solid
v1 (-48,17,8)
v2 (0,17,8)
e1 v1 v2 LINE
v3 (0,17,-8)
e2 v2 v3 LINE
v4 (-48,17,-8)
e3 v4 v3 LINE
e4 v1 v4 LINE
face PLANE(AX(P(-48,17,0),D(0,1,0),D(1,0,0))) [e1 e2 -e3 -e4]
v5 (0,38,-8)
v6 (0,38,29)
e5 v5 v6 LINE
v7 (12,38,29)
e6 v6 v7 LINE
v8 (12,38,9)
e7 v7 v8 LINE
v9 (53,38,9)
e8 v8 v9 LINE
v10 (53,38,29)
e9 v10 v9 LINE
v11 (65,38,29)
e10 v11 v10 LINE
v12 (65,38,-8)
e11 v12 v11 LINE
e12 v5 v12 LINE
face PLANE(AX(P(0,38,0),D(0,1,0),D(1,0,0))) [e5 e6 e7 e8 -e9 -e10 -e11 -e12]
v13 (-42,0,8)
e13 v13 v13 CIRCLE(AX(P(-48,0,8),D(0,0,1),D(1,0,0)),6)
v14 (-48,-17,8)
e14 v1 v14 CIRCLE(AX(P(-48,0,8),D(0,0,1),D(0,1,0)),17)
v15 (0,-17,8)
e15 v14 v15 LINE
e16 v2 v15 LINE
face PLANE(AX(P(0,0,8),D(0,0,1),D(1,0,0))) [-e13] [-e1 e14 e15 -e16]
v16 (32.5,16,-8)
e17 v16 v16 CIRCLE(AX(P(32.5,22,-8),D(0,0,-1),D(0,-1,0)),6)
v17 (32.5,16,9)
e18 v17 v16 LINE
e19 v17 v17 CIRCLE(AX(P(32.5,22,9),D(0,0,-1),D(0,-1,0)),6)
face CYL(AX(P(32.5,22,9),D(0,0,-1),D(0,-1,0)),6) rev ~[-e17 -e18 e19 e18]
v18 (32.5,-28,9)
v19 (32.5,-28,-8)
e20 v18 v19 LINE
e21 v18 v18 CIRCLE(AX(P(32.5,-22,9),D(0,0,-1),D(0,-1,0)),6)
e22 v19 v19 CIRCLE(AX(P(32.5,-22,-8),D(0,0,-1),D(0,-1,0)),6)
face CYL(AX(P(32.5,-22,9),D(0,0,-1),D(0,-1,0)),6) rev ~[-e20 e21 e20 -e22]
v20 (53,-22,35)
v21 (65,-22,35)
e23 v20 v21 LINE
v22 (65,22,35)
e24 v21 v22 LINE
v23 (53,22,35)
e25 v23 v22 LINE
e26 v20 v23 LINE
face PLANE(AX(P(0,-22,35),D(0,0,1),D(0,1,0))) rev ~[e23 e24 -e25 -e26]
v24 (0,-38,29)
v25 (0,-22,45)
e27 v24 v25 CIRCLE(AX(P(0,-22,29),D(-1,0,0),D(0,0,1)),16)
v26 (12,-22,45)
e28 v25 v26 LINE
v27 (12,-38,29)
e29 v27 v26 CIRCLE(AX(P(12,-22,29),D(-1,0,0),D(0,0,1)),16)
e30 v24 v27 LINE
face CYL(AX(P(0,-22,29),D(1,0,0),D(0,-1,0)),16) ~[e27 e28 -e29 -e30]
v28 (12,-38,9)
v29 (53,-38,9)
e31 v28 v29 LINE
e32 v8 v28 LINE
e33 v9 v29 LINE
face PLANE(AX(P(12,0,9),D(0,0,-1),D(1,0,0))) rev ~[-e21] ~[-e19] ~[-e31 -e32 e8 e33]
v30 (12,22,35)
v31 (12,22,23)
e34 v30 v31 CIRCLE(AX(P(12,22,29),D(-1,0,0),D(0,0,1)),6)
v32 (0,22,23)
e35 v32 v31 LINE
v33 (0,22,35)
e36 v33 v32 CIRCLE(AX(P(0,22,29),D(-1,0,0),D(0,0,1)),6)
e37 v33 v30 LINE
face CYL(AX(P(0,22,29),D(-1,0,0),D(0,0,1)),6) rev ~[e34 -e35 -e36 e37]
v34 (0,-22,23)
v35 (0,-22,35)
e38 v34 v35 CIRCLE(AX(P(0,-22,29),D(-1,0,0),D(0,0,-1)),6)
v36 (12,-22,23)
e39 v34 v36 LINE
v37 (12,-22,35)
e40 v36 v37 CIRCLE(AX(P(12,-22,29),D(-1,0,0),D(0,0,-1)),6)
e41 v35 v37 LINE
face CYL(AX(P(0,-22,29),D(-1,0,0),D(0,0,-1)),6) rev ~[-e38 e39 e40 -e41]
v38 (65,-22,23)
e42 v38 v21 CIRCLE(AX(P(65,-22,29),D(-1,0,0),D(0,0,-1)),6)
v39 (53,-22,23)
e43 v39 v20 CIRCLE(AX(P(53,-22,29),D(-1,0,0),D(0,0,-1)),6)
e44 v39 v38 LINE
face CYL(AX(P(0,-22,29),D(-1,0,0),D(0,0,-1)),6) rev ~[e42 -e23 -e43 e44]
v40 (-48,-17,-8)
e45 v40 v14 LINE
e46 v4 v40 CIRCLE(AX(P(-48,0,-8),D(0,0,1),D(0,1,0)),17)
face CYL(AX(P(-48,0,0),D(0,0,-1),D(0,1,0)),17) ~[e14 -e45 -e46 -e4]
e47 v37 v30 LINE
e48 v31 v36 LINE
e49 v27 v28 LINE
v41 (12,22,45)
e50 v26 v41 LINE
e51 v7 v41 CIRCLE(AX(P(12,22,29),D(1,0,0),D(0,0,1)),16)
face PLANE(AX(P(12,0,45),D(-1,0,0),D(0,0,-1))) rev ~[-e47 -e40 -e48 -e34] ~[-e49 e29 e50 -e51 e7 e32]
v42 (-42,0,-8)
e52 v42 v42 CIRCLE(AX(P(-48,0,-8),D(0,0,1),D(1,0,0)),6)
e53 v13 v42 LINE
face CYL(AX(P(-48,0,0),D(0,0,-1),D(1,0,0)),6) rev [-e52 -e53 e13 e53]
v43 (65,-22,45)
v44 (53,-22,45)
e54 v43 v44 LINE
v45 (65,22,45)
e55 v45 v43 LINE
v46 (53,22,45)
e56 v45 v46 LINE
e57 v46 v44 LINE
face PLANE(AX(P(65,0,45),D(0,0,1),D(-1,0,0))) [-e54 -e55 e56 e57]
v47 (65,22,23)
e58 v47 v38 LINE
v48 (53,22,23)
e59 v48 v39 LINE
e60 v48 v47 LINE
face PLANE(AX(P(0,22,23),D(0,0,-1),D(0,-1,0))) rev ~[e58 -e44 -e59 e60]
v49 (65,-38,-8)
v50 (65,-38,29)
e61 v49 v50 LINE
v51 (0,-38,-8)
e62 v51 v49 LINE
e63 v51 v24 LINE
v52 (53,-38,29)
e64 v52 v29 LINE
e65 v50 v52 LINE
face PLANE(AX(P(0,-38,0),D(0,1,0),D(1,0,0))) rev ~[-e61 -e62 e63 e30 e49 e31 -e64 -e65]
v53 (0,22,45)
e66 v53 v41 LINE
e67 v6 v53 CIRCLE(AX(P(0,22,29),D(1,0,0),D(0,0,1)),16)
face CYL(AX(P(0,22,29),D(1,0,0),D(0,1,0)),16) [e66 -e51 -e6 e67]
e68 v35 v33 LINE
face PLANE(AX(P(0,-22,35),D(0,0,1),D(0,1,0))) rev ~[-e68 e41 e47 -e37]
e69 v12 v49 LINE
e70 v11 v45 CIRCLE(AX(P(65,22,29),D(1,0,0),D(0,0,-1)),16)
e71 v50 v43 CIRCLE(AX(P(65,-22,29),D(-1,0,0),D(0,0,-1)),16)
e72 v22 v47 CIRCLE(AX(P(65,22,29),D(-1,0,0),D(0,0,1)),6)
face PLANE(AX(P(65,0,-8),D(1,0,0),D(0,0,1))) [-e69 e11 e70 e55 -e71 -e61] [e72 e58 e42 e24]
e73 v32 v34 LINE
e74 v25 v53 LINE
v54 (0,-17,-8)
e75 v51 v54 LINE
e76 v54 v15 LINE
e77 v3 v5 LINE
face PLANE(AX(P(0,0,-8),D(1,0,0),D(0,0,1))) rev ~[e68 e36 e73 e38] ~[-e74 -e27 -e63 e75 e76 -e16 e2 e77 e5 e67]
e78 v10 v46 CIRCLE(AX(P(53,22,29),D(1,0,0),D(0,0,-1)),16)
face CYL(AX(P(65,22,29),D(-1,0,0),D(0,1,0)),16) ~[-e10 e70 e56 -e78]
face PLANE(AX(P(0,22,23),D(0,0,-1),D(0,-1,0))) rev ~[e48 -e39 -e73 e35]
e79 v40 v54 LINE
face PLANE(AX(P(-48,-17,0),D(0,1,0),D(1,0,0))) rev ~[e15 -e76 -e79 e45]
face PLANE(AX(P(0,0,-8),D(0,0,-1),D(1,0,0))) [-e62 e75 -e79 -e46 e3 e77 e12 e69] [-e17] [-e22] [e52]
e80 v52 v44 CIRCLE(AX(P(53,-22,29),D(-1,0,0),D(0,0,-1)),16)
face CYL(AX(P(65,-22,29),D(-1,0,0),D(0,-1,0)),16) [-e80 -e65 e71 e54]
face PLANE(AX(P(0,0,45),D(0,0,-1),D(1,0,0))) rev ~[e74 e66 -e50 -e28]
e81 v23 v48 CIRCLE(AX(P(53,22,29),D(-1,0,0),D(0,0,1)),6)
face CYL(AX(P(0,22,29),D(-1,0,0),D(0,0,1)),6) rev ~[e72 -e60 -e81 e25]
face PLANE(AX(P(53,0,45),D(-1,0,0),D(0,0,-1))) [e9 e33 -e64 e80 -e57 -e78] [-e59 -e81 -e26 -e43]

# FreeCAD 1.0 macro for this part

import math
import FreeCAD as App
import Part
import Sketcher
Q = App.Units.Quantity


def edges_at(feature, points):
    """Names of the edges that pass closest to the given points."""
    edges = feature.Shape.Edges
    near = lambda p: min(range(len(edges)), key=lambda i: edges[i].distToShape(Part.Vertex(*p))[0])
    return sorted({f"Edge{near(p) + 1}" for p in points})

doc = App.newDocument("Part")
params = doc.addObject("Spreadsheet::Sheet", "Params")
for row, (alias, value) in enumerate([
    ("sketch1_diameter", "12 mm"),
    ("sketch1_radius", "17 mm"),
    ("sketch1_width", "48 mm"),
    ("pad1_length", "16 mm"),
    ("sketch2_width", "65 mm"),
    ("sketch2_width2", "12 mm"),
    ("sketch2_height", "53 mm"),
    ("sketch2_height2", "36 mm"),
    ("pad2_length", "76 mm"),
    ("fillet_radius", "16 mm"),
    ("sketch3_radius", "6 mm"),
    ("sketch3_width", "44 mm"),
    ("pocket1_length", "65 mm"),
    ("sketch4_diameter", "12 mm"),
    ("hole_diameter", "12 mm"),
    ("hole_depth", "65 mm"),
], start=1):
    params.set(f"A{row}", alias)
    params.set(f"B{row}", "=" + value)
    params.setAlias(f"B{row}", alias)

body = doc.addObject("PartDesign::Body", "Body")

# Sketch on XY plane
sketch1 = doc.addObject("Sketcher::SketchObject", "Sketch")
body.addObject(sketch1)
sketch1.AttachmentSupport = (doc.XY_Plane, [""])
sketch1.MapMode = "FlatFace"
sketch1.addGeometry([
    Part.ArcOfCircle(Part.Circle(App.Vector(-48, 0, 0), App.Vector(0, 0, 1), 17), math.radians(90), math.radians(270)),  # 0
    Part.LineSegment(App.Vector(-48, -17, 0), App.Vector(0, -17, 0)),  # 1
    Part.LineSegment(App.Vector(0, -17, 0), App.Vector(0, 17, 0)),  # 2
    Part.LineSegment(App.Vector(0, 17, 0), App.Vector(-48, 17, 0)),  # 3
    Part.Circle(App.Vector(-48, 0, 0), App.Vector(0, 0, 1), 6),  # 4
], False)
sketch1.addConstraint([
    Sketcher.Constraint("Tangent", 0, 2, 1, 1),
    Sketcher.Constraint("Coincident", 1, 2, 2, 1),
    Sketcher.Constraint("Coincident", 2, 2, 3, 1),
    Sketcher.Constraint("Tangent", 3, 2, 0, 1),
    Sketcher.Constraint("Horizontal", 1),
    Sketcher.Constraint("Vertical", 2),
    Sketcher.Constraint("Horizontal", 3),
    Sketcher.Constraint("Coincident", 4, 3, 0, 3),
    Sketcher.Constraint("Symmetric", 1, 2, 2, 2, -1, 1),
    Sketcher.Constraint("Diameter", 4, Q("12 mm")),
    Sketcher.Constraint("Radius", 0, Q("17 mm")),
    Sketcher.Constraint("DistanceX", 1, 1, 1, 2, Q("48 mm")),
])
sketch1.setExpression("Constraints[9]", "Params.sketch1_diameter")
sketch1.setExpression("Constraints[10]", "Params.sketch1_radius")
sketch1.setExpression("Constraints[11]", "Params.sketch1_width")
pad1 = doc.addObject("PartDesign::Pad", "Pad")
body.addObject(pad1)
pad1.Profile = sketch1
pad1.setExpression("Length", "Params.pad1_length")
pad1.Midplane = True

# Sketch on XZ plane
sketch2 = doc.addObject("Sketcher::SketchObject", "Sketch001")
body.addObject(sketch2)
sketch2.AttachmentSupport = (doc.XZ_Plane, [""])
sketch2.MapMode = "FlatFace"
sketch2.addGeometry([
    Part.LineSegment(App.Vector(65, -8, 0), App.Vector(0, -8, 0)),  # 0
    Part.LineSegment(App.Vector(0, -8, 0), App.Vector(0, 45, 0)),  # 1
    Part.LineSegment(App.Vector(0, 45, 0), App.Vector(12, 45, 0)),  # 2
    Part.LineSegment(App.Vector(12, 45, 0), App.Vector(12, 9, 0)),  # 3
    Part.LineSegment(App.Vector(12, 9, 0), App.Vector(53, 9, 0)),  # 4
    Part.LineSegment(App.Vector(53, 9, 0), App.Vector(53, 45, 0)),  # 5
    Part.LineSegment(App.Vector(53, 45, 0), App.Vector(65, 45, 0)),  # 6
    Part.LineSegment(App.Vector(65, 45, 0), App.Vector(65, -8, 0)),  # 7
], False)
sketch2.addConstraint([
    Sketcher.Constraint("Coincident", 0, 2, 1, 1),
    Sketcher.Constraint("Coincident", 1, 2, 2, 1),
    Sketcher.Constraint("Coincident", 2, 2, 3, 1),
    Sketcher.Constraint("Coincident", 3, 2, 4, 1),
    Sketcher.Constraint("Coincident", 4, 2, 5, 1),
    Sketcher.Constraint("Coincident", 5, 2, 6, 1),
    Sketcher.Constraint("Coincident", 6, 2, 7, 1),
    Sketcher.Constraint("Coincident", 7, 2, 0, 1),
    Sketcher.Constraint("Horizontal", 0),
    Sketcher.Constraint("Vertical", 1),
    Sketcher.Constraint("Horizontal", 2),
    Sketcher.Constraint("Vertical", 3),
    Sketcher.Constraint("Horizontal", 4),
    Sketcher.Constraint("Vertical", 5),
    Sketcher.Constraint("Horizontal", 6),
    Sketcher.Constraint("Vertical", 7),
    Sketcher.Constraint("PointOnObject", 0, 2, -2),
    Sketcher.Constraint("Horizontal", 2, 2, 5, 2),
    Sketcher.Constraint("Equal", 2, 6),
    Sketcher.Constraint("DistanceX", 0, 2, 0, 1, Q("65 mm")),
    Sketcher.Constraint("DistanceX", 2, 1, 2, 2, Q("12 mm")),
    Sketcher.Constraint("DistanceY", 1, 1, 1, 2, Q("53 mm")),
    Sketcher.Constraint("DistanceY", 3, 2, 3, 1, Q("36 mm")),
    Sketcher.Constraint("DistanceY", 0, 2, -1, 1, Q("8 mm")),
])
sketch2.setExpression("Constraints[19]", "Params.sketch2_width")
sketch2.setExpression("Constraints[20]", "Params.sketch2_width2")
sketch2.setExpression("Constraints[21]", "Params.sketch2_height")
sketch2.setExpression("Constraints[22]", "Params.sketch2_height2")
pad2 = doc.addObject("PartDesign::Pad", "Pad001")
body.addObject(pad2)
pad2.Profile = sketch2
pad2.setExpression("Length", "Params.pad2_length")
pad2.Midplane = True
doc.recompute()

fillet = doc.addObject("PartDesign::Fillet", "Fillet")
body.addObject(fillet)
fillet.Base = (pad2, edges_at(pad2, [
    (6, 38, 45),
    (6, -38, 45),
    (59, -38, 45),
    (59, 38, 45),
]))
fillet.setExpression("Radius", "Params.fillet_radius")

# Sketch on YZ plane
sketch3 = doc.addObject("Sketcher::SketchObject", "Sketch002")
body.addObject(sketch3)
sketch3.AttachmentSupport = (doc.YZ_Plane, [""])
sketch3.MapMode = "FlatFace"
sketch3.addGeometry([
    Part.ArcOfCircle(Part.Circle(App.Vector(22, 29, 0), App.Vector(0, 0, 1), 6), math.radians(-90), math.radians(90)),
    Part.LineSegment(App.Vector(22, 23, 0), App.Vector(-22, 23, 0)),
    Part.ArcOfCircle(Part.Circle(App.Vector(-22, 29, 0), App.Vector(0, 0, 1), 6), math.radians(90), math.radians(270)),
    Part.LineSegment(App.Vector(-22, 35, 0), App.Vector(22, 35, 0)),
], False)
sketch3.addConstraint([
    Sketcher.Constraint("Tangent", 0, 1, 1, 1),
    Sketcher.Constraint("Tangent", 1, 2, 2, 2),
    Sketcher.Constraint("Tangent", 2, 1, 3, 1),
    Sketcher.Constraint("Tangent", 3, 2, 0, 2),
    Sketcher.Constraint("Horizontal", 1),
    Sketcher.Constraint("Horizontal", 3),
    Sketcher.Constraint("Radius", 0, Q("6 mm")),
    Sketcher.Constraint("DistanceX", 1, 2, 1, 1, Q("44 mm")),
    Sketcher.Constraint("DistanceX", -1, 1, 0, 3, Q("22 mm")),
    Sketcher.Constraint("DistanceY", -1, 1, 0, 3, Q("29 mm")),
])
sketch3.setExpression("Constraints[6]", "Params.sketch3_radius")
sketch3.setExpression("Constraints[7]", "Params.sketch3_width")
pocket1 = doc.addObject("PartDesign::Pocket", "Pocket")
body.addObject(pocket1)
pocket1.Profile = sketch3
pocket1.setExpression("Length", "Params.pocket1_length")
pocket1.Reversed = True

# Sketch on XY plane
sketch4 = doc.addObject("Sketcher::SketchObject", "Sketch003")
body.addObject(sketch4)
sketch4.AttachmentSupport = (doc.XY_Plane, [""])
sketch4.MapMode = "FlatFace"
sketch4.AttachmentOffset = App.Placement(App.Vector(0, 0, 9), App.Rotation())
sketch4.addGeometry([
    Part.Circle(App.Vector(32.5, 22, 0), App.Vector(0, 0, 1), 6),
    Part.Circle(App.Vector(32.5, -22, 0), App.Vector(0, 0, 1), 6),
], False)
sketch4.addConstraint([
    Sketcher.Constraint("Equal", 0, 1),
    Sketcher.Constraint("Symmetric", 0, 3, 1, 3, -1),
    Sketcher.Constraint("Diameter", 0, Q("12 mm")),
    Sketcher.Constraint("DistanceY", -1, 1, 0, 3, Q("22 mm")),
    Sketcher.Constraint("DistanceX", -1, 1, 0, 3, Q("32.5 mm")),
])
sketch4.setExpression("Constraints[2]", "Params.sketch4_diameter")
doc.recompute()
hole = doc.addObject("PartDesign::Hole", "Hole")
body.addObject(hole)
hole.Profile = sketch4
hole.ThreadType = "None"
hole.setExpression("Diameter", "Params.hole_diameter")
hole.DepthType = "Dimension"
hole.setExpression("Depth", "Params.hole_depth")
hole.DrillPoint = "Angled"
hole.DrillPointAngle = 118

doc.recompute()
